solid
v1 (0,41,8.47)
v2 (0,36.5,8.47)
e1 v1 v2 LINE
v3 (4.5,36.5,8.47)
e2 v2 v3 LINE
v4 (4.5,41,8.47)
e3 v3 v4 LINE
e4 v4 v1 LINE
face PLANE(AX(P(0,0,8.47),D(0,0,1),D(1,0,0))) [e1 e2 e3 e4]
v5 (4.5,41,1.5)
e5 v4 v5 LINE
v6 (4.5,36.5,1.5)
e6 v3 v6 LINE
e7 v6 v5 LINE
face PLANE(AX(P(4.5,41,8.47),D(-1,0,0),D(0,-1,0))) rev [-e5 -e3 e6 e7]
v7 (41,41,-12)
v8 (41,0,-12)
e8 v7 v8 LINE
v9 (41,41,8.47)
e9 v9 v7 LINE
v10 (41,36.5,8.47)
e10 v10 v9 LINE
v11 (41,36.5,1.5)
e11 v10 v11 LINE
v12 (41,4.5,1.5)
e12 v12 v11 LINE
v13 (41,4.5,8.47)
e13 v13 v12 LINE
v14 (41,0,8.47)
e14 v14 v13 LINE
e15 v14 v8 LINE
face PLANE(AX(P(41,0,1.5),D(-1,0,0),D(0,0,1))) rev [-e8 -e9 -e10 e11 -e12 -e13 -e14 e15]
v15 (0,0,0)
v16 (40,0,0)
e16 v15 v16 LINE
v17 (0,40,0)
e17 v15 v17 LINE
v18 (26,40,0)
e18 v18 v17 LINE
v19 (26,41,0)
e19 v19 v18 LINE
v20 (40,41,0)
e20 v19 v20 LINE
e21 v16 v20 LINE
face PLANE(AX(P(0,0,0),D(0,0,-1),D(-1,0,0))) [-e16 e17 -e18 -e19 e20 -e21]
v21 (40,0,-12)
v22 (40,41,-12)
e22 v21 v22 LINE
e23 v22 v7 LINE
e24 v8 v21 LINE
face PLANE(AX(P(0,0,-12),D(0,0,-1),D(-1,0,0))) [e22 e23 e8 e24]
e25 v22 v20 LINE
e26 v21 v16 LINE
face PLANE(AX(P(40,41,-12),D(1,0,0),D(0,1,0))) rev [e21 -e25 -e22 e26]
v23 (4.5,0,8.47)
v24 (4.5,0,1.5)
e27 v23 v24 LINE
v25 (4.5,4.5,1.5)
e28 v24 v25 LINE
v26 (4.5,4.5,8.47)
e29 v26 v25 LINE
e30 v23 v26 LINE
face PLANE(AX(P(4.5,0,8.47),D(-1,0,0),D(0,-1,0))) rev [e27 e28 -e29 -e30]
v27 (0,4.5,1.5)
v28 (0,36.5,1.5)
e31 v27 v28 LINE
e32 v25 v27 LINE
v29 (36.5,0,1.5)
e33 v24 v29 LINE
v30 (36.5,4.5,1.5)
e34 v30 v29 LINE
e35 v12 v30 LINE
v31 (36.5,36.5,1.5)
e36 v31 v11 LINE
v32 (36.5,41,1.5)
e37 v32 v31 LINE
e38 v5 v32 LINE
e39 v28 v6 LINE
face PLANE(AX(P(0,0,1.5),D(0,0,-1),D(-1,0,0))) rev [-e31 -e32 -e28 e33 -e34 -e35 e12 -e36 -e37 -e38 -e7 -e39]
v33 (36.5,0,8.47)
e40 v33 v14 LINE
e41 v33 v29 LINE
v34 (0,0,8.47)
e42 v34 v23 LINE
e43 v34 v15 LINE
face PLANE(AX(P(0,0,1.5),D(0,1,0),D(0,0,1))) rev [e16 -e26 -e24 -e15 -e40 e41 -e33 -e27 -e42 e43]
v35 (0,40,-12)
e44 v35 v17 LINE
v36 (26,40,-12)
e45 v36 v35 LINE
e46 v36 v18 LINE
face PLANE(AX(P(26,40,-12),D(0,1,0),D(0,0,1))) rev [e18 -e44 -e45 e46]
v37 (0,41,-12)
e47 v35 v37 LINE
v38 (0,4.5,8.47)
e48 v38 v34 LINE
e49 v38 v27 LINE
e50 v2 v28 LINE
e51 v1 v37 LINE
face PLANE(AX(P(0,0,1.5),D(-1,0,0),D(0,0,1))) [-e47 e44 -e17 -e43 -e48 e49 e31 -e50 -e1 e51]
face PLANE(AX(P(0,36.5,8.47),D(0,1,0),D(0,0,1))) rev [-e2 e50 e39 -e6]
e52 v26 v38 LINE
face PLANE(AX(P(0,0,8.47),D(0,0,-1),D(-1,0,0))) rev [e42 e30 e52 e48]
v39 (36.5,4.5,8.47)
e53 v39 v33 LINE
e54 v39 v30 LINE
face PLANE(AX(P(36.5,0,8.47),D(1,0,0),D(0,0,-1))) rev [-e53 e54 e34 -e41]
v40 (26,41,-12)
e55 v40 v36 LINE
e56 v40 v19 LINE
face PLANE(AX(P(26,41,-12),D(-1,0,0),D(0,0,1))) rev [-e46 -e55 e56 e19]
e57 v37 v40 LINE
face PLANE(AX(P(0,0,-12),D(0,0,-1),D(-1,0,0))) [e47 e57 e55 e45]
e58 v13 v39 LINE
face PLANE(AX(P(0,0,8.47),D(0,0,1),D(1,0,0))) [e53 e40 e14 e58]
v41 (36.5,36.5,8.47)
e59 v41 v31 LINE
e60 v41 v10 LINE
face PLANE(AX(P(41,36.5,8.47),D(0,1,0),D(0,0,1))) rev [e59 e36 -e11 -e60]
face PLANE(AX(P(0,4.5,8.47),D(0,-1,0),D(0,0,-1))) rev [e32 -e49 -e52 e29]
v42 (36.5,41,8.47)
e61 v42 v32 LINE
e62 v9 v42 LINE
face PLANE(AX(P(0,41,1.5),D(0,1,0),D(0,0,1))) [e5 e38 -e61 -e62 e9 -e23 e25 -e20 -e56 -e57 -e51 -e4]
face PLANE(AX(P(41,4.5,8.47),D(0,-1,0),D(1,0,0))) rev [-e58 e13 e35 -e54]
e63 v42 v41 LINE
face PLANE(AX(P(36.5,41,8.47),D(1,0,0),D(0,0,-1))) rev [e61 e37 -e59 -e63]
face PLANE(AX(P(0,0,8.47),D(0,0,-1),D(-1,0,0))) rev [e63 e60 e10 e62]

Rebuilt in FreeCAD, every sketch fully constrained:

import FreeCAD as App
import Part
import Sketcher
Q = App.Units.Quantity

doc = App.newDocument("Part")
body = doc.addObject("PartDesign::Body", "Body")

sketch1 = body.newObject("Sketcher::SketchObject", "Sketch")
sketch1.AttachmentSupport = (doc.getObject("XY_Plane"), [""])
sketch1.MapMode = "FlatFace"
sketch1.addGeometry(Part.LineSegment(App.Vector(0, 41, 0), App.Vector(0, 0, 0)), False)
sketch1.addGeometry(Part.LineSegment(App.Vector(0, 0, 0), App.Vector(41, 0, 0)), False)
sketch1.addGeometry(Part.LineSegment(App.Vector(41, 0, 0), App.Vector(41, 41, 0)), False)
sketch1.addGeometry(Part.LineSegment(App.Vector(41, 41, 0), App.Vector(0, 41, 0)), False)
sketch1.addConstraint(Sketcher.Constraint("Coincident", 0, 2, 1, 1))
sketch1.addConstraint(Sketcher.Constraint("Coincident", 1, 2, 2, 1))
sketch1.addConstraint(Sketcher.Constraint("Coincident", 2, 2, 3, 1))
sketch1.addConstraint(Sketcher.Constraint("Coincident", 3, 2, 0, 1))
sketch1.addConstraint(Sketcher.Constraint("Vertical", 0))
sketch1.addConstraint(Sketcher.Constraint("Horizontal", 1))
sketch1.addConstraint(Sketcher.Constraint("Vertical", 2))
sketch1.addConstraint(Sketcher.Constraint("Horizontal", 3))
sketch1.addConstraint(Sketcher.Constraint("Coincident", 0, 2, -1, 1))
sketch1.addConstraint(Sketcher.Constraint("Equal", 3, 0))
sketch1.addConstraint(Sketcher.Constraint("DistanceX", 1, 1, 1, 2, Q("41 mm")))
pad1 = body.newObject("PartDesign::Pad", "Pad")
pad1.Profile = sketch1
pad1.Length = 1.5

sketch2 = body.newObject("Sketcher::SketchObject", "Sketch001")
sketch2.AttachmentSupport = (doc.getObject("XY_Plane"), [""])
sketch2.MapMode = "FlatFace"
sketch2.AttachmentOffset = App.Placement(App.Vector(0, 0, 1.5), App.Rotation())
sketch2.addGeometry(Part.LineSegment(App.Vector(0, 4.5, 0), App.Vector(0, 0, 0)), False)
sketch2.addGeometry(Part.LineSegment(App.Vector(0, 0, 0), App.Vector(4.5, 0, 0)), False)
sketch2.addGeometry(Part.LineSegment(App.Vector(4.5, 0, 0), App.Vector(4.5, 4.5, 0)), False)
sketch2.addGeometry(Part.LineSegment(App.Vector(4.5, 4.5, 0), App.Vector(0, 4.5, 0)), False)
sketch2.addConstraint(Sketcher.Constraint("Coincident", 0, 2, 1, 1))
sketch2.addConstraint(Sketcher.Constraint("Coincident", 1, 2, 2, 1))
sketch2.addConstraint(Sketcher.Constraint("Coincident", 2, 2, 3, 1))
sketch2.addConstraint(Sketcher.Constraint("Coincident", 3, 2, 0, 1))
sketch2.addConstraint(Sketcher.Constraint("Vertical", 0))
sketch2.addConstraint(Sketcher.Constraint("Horizontal", 1))
sketch2.addConstraint(Sketcher.Constraint("Vertical", 2))
sketch2.addConstraint(Sketcher.Constraint("Horizontal", 3))
sketch2.addConstraint(Sketcher.Constraint("Coincident", 0, 2, -1, 1))
sketch2.addConstraint(Sketcher.Constraint("Equal", 3, 0))
sketch2.addConstraint(Sketcher.Constraint("DistanceX", 1, 1, 1, 2, Q("4.5 mm")))
pad2 = body.newObject("PartDesign::Pad", "Pad001")
pad2.Profile = sketch2
pad2.Length = 6.97

sketch3 = body.newObject("Sketcher::SketchObject", "Sketch002")
sketch3.AttachmentSupport = (doc.getObject("XY_Plane"), [""])
sketch3.MapMode = "FlatFace"
sketch3.AttachmentOffset = App.Placement(App.Vector(0, 0, 1.5), App.Rotation())
sketch3.addGeometry(Part.LineSegment(App.Vector(36.5, 4.5, 0), App.Vector(36.5, 0, 0)), False)
sketch3.addGeometry(Part.LineSegment(App.Vector(36.5, 0, 0), App.Vector(41, 0, 0)), False)
sketch3.addGeometry(Part.LineSegment(App.Vector(41, 0, 0), App.Vector(41, 4.5, 0)), False)
sketch3.addGeometry(Part.LineSegment(App.Vector(41, 4.5, 0), App.Vector(36.5, 4.5, 0)), False)
sketch3.addConstraint(Sketcher.Constraint("Coincident", 0, 2, 1, 1))
sketch3.addConstraint(Sketcher.Constraint("Coincident", 1, 2, 2, 1))
sketch3.addConstraint(Sketcher.Constraint("Coincident", 2, 2, 3, 1))
sketch3.addConstraint(Sketcher.Constraint("Coincident", 3, 2, 0, 1))
sketch3.addConstraint(Sketcher.Constraint("Vertical", 0))
sketch3.addConstraint(Sketcher.Constraint("Horizontal", 1))
sketch3.addConstraint(Sketcher.Constraint("Vertical", 2))
sketch3.addConstraint(Sketcher.Constraint("Horizontal", 3))
sketch3.addConstraint(Sketcher.Constraint("PointOnObject", 0, 2, -1))
sketch3.addConstraint(Sketcher.Constraint("Equal", 3, 0))
sketch3.addConstraint(Sketcher.Constraint("DistanceX", 1, 1, 1, 2, Q("4.5 mm")))
sketch3.addConstraint(Sketcher.Constraint("DistanceX", -1, 1, 1, 2, Q("41 mm")))
pad3 = body.newObject("PartDesign::Pad", "Pad002")
pad3.Profile = sketch3
pad3.Length = 6.97

sketch4 = body.newObject("Sketcher::SketchObject", "Sketch003")
sketch4.AttachmentSupport = (doc.getObject("XY_Plane"), [""])
sketch4.MapMode = "FlatFace"
sketch4.AttachmentOffset = App.Placement(App.Vector(0, 0, 1.5), App.Rotation())
sketch4.addGeometry(Part.LineSegment(App.Vector(0, 41, 0), App.Vector(0, 36.5, 0)), False)
sketch4.addGeometry(Part.LineSegment(App.Vector(0, 36.5, 0), App.Vector(4.5, 36.5, 0)), False)
sketch4.addGeometry(Part.LineSegment(App.Vector(4.5, 36.5, 0), App.Vector(4.5, 41, 0)), False)
sketch4.addGeometry(Part.LineSegment(App.Vector(4.5, 41, 0), App.Vector(0, 41, 0)), False)
sketch4.addConstraint(Sketcher.Constraint("Coincident", 0, 2, 1, 1))
sketch4.addConstraint(Sketcher.Constraint("Coincident", 1, 2, 2, 1))
sketch4.addConstraint(Sketcher.Constraint("Coincident", 2, 2, 3, 1))
sketch4.addConstraint(Sketcher.Constraint("Coincident", 3, 2, 0, 1))
sketch4.addConstraint(Sketcher.Constraint("Vertical", 0))
sketch4.addConstraint(Sketcher.Constraint("Horizontal", 1))
sketch4.addConstraint(Sketcher.Constraint("Vertical", 2))
sketch4.addConstraint(Sketcher.Constraint("Horizontal", 3))
sketch4.addConstraint(Sketcher.Constraint("PointOnObject", 0, 2, -2))
sketch4.addConstraint(Sketcher.Constraint("Equal", 3, 0))
sketch4.addConstraint(Sketcher.Constraint("DistanceX", 1, 1, 1, 2, Q("4.5 mm")))
sketch4.addConstraint(Sketcher.Constraint("DistanceY", -1, 1, 2, 2, Q("41 mm")))
pad4 = body.newObject("PartDesign::Pad", "Pad003")
pad4.Profile = sketch4
pad4.Length = 6.97

sketch5 = body.newObject("Sketcher::SketchObject", "Sketch004")
sketch5.AttachmentSupport = (doc.getObject("XY_Plane"), [""])
sketch5.MapMode = "FlatFace"
sketch5.AttachmentOffset = App.Placement(App.Vector(0, 0, 1.5), App.Rotation())
sketch5.addGeometry(Part.LineSegment(App.Vector(36.5, 41, 0), App.Vector(36.5, 36.5, 0)), False)
sketch5.addGeometry(Part.LineSegment(App.Vector(36.5, 36.5, 0), App.Vector(41, 36.5, 0)), False)
sketch5.addGeometry(Part.LineSegment(App.Vector(41, 36.5, 0), App.Vector(41, 41, 0)), False)
sketch5.addGeometry(Part.LineSegment(App.Vector(41, 41, 0), App.Vector(36.5, 41, 0)), False)
sketch5.addConstraint(Sketcher.Constraint("Coincident", 0, 2, 1, 1))
sketch5.addConstraint(Sketcher.Constraint("Coincident", 1, 2, 2, 1))
sketch5.addConstraint(Sketcher.Constraint("Coincident", 2, 2, 3, 1))
sketch5.addConstraint(Sketcher.Constraint("Coincident", 3, 2, 0, 1))
sketch5.addConstraint(Sketcher.Constraint("Vertical", 0))
sketch5.addConstraint(Sketcher.Constraint("Horizontal", 1))
sketch5.addConstraint(Sketcher.Constraint("Vertical", 2))
sketch5.addConstraint(Sketcher.Constraint("Horizontal", 3))
sketch5.addConstraint(Sketcher.Constraint("Equal", 3, 0))
sketch5.addConstraint(Sketcher.Constraint("DistanceX", 1, 1, 1, 2, Q("4.5 mm")))
sketch5.addConstraint(Sketcher.Constraint("DistanceX", -1, 1, 1, 2, Q("41 mm")))
sketch5.addConstraint(Sketcher.Constraint("DistanceY", -1, 1, 2, 2, Q("41 mm")))
pad5 = body.newObject("PartDesign::Pad", "Pad004")
pad5.Profile = sketch5
pad5.Length = 6.97

sketch6 = body.newObject("Sketcher::SketchObject", "Sketch005")
sketch6.AttachmentSupport = (doc.getObject("XY_Plane"), [""])
sketch6.MapMode = "FlatFace"
sketch6.addGeometry(Part.LineSegment(App.Vector(41, 41, 0), App.Vector(41, 0, 0)), False)
sketch6.addGeometry(Part.LineSegment(App.Vector(41, 0, 0), App.Vector(40, 0, 0)), False)
sketch6.addGeometry(Part.LineSegment(App.Vector(40, 0, 0), App.Vector(40, 41, 0)), False)
sketch6.addGeometry(Part.LineSegment(App.Vector(40, 41, 0), App.Vector(41, 41, 0)), False)
sketch6.addConstraint(Sketcher.Constraint("Coincident", 0, 2, 1, 1))
sketch6.addConstraint(Sketcher.Constraint("Coincident", 1, 2, 2, 1))
sketch6.addConstraint(Sketcher.Constraint("Coincident", 2, 2, 3, 1))
sketch6.addConstraint(Sketcher.Constraint("Coincident", 3, 2, 0, 1))
sketch6.addConstraint(Sketcher.Constraint("Vertical", 0))
sketch6.addConstraint(Sketcher.Constraint("Horizontal", 1))
sketch6.addConstraint(Sketcher.Constraint("Vertical", 2))
sketch6.addConstraint(Sketcher.Constraint("Horizontal", 3))
sketch6.addConstraint(Sketcher.Constraint("PointOnObject", 0, 2, -1))
sketch6.addConstraint(Sketcher.Constraint("DistanceX", 1, 2, 1, 1, Q("1 mm")))
sketch6.addConstraint(Sketcher.Constraint("DistanceY", 0, 2, 0, 1, Q("41 mm")))
sketch6.addConstraint(Sketcher.Constraint("DistanceX", -1, 1, 0, 2, Q("41 mm")))
pad6 = body.newObject("PartDesign::Pad", "Pad005")
pad6.Profile = sketch6
pad6.Length = 12
pad6.Reversed = True

sketch7 = body.newObject("Sketcher::SketchObject", "Sketch006")
sketch7.AttachmentSupport = (doc.getObject("XY_Plane"), [""])
sketch7.MapMode = "FlatFace"
sketch7.addGeometry(Part.LineSegment(App.Vector(26, 41, 0), App.Vector(26, 40, 0)), False)
sketch7.addGeometry(Part.LineSegment(App.Vector(26, 40, 0), App.Vector(0, 40, 0)), False)
sketch7.addGeometry(Part.LineSegment(App.Vector(0, 40, 0), App.Vector(0, 41, 0)), False)
sketch7.addGeometry(Part.LineSegment(App.Vector(0, 41, 0), App.Vector(26, 41, 0)), False)
sketch7.addConstraint(Sketcher.Constraint("Coincident", 0, 2, 1, 1))
sketch7.addConstraint(Sketcher.Constraint("Coincident", 1, 2, 2, 1))
sketch7.addConstraint(Sketcher.Constraint("Coincident", 2, 2, 3, 1))
sketch7.addConstraint(Sketcher.Constraint("Coincident", 3, 2, 0, 1))
sketch7.addConstraint(Sketcher.Constraint("Vertical", 0))
sketch7.addConstraint(Sketcher.Constraint("Horizontal", 1))
sketch7.addConstraint(Sketcher.Constraint("Vertical", 2))
sketch7.addConstraint(Sketcher.Constraint("Horizontal", 3))
sketch7.addConstraint(Sketcher.Constraint("PointOnObject", 1, 2, -2))
sketch7.addConstraint(Sketcher.Constraint("DistanceX", 1, 2, 1, 1, Q("26 mm")))
sketch7.addConstraint(Sketcher.Constraint("DistanceY", 0, 2, 0, 1, Q("1 mm")))
sketch7.addConstraint(Sketcher.Constraint("DistanceY", -1, 1, 0, 2, Q("40 mm")))
pad7 = body.newObject("PartDesign::Pad", "Pad006")
pad7.Profile = sketch7
pad7.Length = 12
pad7.Reversed = True

sketch8 = body.newObject("Sketcher::SketchObject", "Sketch007")
sketch8.AttachmentSupport = (doc.getObject("XY_Plane"), [""])
sketch8.MapMode = "FlatFace"
sketch8.AttachmentOffset = App.Placement(App.Vector(0, 0, 8.47), App.Rotation())
sketch8.addGeometry(Part.Circle(App.Vector(32.78, 214.5, 0), App.Vector(0, 0, 1), 0.4), False)
sketch8.addConstraint(Sketcher.Constraint("Diameter", 0, Q("0.8 mm")))
sketch8.addConstraint(Sketcher.Constraint("DistanceY", -1, 1, 0, 3, Q("214.499338 mm")))
sketch8.addConstraint(Sketcher.Constraint("DistanceX", -1, 1, 0, 3, Q("32.781076 mm")))
pocket1 = body.newObject("PartDesign::Pocket", "Pocket")
pocket1.Profile = sketch8
pocket1.Length = 10

sketch9 = body.newObject("Sketcher::SketchObject", "Sketch008")
sketch9.AttachmentSupport = (doc.getObject("XY_Plane"), [""])
sketch9.MapMode = "FlatFace"
sketch9.AttachmentOffset = App.Placement(App.Vector(0, 0, 8.47), App.Rotation())
sketch9.addGeometry(Part.Circle(App.Vector(-3.52, 178.3, 0), App.Vector(0, 0, 1), 0.4), False)
sketch9.addConstraint(Sketcher.Constraint("Diameter", 0, Q("0.8 mm")))
sketch9.addConstraint(Sketcher.Constraint("DistanceY", -1, 1, 0, 3, Q("178.299338 mm")))
sketch9.addConstraint(Sketcher.Constraint("DistanceX", 0, 3, -1, 1, Q("3.518924 mm")))
pocket2 = body.newObject("PartDesign::Pocket", "Pocket001")
pocket2.Profile = sketch9
pocket2.Length = 10

doc.recompute()
